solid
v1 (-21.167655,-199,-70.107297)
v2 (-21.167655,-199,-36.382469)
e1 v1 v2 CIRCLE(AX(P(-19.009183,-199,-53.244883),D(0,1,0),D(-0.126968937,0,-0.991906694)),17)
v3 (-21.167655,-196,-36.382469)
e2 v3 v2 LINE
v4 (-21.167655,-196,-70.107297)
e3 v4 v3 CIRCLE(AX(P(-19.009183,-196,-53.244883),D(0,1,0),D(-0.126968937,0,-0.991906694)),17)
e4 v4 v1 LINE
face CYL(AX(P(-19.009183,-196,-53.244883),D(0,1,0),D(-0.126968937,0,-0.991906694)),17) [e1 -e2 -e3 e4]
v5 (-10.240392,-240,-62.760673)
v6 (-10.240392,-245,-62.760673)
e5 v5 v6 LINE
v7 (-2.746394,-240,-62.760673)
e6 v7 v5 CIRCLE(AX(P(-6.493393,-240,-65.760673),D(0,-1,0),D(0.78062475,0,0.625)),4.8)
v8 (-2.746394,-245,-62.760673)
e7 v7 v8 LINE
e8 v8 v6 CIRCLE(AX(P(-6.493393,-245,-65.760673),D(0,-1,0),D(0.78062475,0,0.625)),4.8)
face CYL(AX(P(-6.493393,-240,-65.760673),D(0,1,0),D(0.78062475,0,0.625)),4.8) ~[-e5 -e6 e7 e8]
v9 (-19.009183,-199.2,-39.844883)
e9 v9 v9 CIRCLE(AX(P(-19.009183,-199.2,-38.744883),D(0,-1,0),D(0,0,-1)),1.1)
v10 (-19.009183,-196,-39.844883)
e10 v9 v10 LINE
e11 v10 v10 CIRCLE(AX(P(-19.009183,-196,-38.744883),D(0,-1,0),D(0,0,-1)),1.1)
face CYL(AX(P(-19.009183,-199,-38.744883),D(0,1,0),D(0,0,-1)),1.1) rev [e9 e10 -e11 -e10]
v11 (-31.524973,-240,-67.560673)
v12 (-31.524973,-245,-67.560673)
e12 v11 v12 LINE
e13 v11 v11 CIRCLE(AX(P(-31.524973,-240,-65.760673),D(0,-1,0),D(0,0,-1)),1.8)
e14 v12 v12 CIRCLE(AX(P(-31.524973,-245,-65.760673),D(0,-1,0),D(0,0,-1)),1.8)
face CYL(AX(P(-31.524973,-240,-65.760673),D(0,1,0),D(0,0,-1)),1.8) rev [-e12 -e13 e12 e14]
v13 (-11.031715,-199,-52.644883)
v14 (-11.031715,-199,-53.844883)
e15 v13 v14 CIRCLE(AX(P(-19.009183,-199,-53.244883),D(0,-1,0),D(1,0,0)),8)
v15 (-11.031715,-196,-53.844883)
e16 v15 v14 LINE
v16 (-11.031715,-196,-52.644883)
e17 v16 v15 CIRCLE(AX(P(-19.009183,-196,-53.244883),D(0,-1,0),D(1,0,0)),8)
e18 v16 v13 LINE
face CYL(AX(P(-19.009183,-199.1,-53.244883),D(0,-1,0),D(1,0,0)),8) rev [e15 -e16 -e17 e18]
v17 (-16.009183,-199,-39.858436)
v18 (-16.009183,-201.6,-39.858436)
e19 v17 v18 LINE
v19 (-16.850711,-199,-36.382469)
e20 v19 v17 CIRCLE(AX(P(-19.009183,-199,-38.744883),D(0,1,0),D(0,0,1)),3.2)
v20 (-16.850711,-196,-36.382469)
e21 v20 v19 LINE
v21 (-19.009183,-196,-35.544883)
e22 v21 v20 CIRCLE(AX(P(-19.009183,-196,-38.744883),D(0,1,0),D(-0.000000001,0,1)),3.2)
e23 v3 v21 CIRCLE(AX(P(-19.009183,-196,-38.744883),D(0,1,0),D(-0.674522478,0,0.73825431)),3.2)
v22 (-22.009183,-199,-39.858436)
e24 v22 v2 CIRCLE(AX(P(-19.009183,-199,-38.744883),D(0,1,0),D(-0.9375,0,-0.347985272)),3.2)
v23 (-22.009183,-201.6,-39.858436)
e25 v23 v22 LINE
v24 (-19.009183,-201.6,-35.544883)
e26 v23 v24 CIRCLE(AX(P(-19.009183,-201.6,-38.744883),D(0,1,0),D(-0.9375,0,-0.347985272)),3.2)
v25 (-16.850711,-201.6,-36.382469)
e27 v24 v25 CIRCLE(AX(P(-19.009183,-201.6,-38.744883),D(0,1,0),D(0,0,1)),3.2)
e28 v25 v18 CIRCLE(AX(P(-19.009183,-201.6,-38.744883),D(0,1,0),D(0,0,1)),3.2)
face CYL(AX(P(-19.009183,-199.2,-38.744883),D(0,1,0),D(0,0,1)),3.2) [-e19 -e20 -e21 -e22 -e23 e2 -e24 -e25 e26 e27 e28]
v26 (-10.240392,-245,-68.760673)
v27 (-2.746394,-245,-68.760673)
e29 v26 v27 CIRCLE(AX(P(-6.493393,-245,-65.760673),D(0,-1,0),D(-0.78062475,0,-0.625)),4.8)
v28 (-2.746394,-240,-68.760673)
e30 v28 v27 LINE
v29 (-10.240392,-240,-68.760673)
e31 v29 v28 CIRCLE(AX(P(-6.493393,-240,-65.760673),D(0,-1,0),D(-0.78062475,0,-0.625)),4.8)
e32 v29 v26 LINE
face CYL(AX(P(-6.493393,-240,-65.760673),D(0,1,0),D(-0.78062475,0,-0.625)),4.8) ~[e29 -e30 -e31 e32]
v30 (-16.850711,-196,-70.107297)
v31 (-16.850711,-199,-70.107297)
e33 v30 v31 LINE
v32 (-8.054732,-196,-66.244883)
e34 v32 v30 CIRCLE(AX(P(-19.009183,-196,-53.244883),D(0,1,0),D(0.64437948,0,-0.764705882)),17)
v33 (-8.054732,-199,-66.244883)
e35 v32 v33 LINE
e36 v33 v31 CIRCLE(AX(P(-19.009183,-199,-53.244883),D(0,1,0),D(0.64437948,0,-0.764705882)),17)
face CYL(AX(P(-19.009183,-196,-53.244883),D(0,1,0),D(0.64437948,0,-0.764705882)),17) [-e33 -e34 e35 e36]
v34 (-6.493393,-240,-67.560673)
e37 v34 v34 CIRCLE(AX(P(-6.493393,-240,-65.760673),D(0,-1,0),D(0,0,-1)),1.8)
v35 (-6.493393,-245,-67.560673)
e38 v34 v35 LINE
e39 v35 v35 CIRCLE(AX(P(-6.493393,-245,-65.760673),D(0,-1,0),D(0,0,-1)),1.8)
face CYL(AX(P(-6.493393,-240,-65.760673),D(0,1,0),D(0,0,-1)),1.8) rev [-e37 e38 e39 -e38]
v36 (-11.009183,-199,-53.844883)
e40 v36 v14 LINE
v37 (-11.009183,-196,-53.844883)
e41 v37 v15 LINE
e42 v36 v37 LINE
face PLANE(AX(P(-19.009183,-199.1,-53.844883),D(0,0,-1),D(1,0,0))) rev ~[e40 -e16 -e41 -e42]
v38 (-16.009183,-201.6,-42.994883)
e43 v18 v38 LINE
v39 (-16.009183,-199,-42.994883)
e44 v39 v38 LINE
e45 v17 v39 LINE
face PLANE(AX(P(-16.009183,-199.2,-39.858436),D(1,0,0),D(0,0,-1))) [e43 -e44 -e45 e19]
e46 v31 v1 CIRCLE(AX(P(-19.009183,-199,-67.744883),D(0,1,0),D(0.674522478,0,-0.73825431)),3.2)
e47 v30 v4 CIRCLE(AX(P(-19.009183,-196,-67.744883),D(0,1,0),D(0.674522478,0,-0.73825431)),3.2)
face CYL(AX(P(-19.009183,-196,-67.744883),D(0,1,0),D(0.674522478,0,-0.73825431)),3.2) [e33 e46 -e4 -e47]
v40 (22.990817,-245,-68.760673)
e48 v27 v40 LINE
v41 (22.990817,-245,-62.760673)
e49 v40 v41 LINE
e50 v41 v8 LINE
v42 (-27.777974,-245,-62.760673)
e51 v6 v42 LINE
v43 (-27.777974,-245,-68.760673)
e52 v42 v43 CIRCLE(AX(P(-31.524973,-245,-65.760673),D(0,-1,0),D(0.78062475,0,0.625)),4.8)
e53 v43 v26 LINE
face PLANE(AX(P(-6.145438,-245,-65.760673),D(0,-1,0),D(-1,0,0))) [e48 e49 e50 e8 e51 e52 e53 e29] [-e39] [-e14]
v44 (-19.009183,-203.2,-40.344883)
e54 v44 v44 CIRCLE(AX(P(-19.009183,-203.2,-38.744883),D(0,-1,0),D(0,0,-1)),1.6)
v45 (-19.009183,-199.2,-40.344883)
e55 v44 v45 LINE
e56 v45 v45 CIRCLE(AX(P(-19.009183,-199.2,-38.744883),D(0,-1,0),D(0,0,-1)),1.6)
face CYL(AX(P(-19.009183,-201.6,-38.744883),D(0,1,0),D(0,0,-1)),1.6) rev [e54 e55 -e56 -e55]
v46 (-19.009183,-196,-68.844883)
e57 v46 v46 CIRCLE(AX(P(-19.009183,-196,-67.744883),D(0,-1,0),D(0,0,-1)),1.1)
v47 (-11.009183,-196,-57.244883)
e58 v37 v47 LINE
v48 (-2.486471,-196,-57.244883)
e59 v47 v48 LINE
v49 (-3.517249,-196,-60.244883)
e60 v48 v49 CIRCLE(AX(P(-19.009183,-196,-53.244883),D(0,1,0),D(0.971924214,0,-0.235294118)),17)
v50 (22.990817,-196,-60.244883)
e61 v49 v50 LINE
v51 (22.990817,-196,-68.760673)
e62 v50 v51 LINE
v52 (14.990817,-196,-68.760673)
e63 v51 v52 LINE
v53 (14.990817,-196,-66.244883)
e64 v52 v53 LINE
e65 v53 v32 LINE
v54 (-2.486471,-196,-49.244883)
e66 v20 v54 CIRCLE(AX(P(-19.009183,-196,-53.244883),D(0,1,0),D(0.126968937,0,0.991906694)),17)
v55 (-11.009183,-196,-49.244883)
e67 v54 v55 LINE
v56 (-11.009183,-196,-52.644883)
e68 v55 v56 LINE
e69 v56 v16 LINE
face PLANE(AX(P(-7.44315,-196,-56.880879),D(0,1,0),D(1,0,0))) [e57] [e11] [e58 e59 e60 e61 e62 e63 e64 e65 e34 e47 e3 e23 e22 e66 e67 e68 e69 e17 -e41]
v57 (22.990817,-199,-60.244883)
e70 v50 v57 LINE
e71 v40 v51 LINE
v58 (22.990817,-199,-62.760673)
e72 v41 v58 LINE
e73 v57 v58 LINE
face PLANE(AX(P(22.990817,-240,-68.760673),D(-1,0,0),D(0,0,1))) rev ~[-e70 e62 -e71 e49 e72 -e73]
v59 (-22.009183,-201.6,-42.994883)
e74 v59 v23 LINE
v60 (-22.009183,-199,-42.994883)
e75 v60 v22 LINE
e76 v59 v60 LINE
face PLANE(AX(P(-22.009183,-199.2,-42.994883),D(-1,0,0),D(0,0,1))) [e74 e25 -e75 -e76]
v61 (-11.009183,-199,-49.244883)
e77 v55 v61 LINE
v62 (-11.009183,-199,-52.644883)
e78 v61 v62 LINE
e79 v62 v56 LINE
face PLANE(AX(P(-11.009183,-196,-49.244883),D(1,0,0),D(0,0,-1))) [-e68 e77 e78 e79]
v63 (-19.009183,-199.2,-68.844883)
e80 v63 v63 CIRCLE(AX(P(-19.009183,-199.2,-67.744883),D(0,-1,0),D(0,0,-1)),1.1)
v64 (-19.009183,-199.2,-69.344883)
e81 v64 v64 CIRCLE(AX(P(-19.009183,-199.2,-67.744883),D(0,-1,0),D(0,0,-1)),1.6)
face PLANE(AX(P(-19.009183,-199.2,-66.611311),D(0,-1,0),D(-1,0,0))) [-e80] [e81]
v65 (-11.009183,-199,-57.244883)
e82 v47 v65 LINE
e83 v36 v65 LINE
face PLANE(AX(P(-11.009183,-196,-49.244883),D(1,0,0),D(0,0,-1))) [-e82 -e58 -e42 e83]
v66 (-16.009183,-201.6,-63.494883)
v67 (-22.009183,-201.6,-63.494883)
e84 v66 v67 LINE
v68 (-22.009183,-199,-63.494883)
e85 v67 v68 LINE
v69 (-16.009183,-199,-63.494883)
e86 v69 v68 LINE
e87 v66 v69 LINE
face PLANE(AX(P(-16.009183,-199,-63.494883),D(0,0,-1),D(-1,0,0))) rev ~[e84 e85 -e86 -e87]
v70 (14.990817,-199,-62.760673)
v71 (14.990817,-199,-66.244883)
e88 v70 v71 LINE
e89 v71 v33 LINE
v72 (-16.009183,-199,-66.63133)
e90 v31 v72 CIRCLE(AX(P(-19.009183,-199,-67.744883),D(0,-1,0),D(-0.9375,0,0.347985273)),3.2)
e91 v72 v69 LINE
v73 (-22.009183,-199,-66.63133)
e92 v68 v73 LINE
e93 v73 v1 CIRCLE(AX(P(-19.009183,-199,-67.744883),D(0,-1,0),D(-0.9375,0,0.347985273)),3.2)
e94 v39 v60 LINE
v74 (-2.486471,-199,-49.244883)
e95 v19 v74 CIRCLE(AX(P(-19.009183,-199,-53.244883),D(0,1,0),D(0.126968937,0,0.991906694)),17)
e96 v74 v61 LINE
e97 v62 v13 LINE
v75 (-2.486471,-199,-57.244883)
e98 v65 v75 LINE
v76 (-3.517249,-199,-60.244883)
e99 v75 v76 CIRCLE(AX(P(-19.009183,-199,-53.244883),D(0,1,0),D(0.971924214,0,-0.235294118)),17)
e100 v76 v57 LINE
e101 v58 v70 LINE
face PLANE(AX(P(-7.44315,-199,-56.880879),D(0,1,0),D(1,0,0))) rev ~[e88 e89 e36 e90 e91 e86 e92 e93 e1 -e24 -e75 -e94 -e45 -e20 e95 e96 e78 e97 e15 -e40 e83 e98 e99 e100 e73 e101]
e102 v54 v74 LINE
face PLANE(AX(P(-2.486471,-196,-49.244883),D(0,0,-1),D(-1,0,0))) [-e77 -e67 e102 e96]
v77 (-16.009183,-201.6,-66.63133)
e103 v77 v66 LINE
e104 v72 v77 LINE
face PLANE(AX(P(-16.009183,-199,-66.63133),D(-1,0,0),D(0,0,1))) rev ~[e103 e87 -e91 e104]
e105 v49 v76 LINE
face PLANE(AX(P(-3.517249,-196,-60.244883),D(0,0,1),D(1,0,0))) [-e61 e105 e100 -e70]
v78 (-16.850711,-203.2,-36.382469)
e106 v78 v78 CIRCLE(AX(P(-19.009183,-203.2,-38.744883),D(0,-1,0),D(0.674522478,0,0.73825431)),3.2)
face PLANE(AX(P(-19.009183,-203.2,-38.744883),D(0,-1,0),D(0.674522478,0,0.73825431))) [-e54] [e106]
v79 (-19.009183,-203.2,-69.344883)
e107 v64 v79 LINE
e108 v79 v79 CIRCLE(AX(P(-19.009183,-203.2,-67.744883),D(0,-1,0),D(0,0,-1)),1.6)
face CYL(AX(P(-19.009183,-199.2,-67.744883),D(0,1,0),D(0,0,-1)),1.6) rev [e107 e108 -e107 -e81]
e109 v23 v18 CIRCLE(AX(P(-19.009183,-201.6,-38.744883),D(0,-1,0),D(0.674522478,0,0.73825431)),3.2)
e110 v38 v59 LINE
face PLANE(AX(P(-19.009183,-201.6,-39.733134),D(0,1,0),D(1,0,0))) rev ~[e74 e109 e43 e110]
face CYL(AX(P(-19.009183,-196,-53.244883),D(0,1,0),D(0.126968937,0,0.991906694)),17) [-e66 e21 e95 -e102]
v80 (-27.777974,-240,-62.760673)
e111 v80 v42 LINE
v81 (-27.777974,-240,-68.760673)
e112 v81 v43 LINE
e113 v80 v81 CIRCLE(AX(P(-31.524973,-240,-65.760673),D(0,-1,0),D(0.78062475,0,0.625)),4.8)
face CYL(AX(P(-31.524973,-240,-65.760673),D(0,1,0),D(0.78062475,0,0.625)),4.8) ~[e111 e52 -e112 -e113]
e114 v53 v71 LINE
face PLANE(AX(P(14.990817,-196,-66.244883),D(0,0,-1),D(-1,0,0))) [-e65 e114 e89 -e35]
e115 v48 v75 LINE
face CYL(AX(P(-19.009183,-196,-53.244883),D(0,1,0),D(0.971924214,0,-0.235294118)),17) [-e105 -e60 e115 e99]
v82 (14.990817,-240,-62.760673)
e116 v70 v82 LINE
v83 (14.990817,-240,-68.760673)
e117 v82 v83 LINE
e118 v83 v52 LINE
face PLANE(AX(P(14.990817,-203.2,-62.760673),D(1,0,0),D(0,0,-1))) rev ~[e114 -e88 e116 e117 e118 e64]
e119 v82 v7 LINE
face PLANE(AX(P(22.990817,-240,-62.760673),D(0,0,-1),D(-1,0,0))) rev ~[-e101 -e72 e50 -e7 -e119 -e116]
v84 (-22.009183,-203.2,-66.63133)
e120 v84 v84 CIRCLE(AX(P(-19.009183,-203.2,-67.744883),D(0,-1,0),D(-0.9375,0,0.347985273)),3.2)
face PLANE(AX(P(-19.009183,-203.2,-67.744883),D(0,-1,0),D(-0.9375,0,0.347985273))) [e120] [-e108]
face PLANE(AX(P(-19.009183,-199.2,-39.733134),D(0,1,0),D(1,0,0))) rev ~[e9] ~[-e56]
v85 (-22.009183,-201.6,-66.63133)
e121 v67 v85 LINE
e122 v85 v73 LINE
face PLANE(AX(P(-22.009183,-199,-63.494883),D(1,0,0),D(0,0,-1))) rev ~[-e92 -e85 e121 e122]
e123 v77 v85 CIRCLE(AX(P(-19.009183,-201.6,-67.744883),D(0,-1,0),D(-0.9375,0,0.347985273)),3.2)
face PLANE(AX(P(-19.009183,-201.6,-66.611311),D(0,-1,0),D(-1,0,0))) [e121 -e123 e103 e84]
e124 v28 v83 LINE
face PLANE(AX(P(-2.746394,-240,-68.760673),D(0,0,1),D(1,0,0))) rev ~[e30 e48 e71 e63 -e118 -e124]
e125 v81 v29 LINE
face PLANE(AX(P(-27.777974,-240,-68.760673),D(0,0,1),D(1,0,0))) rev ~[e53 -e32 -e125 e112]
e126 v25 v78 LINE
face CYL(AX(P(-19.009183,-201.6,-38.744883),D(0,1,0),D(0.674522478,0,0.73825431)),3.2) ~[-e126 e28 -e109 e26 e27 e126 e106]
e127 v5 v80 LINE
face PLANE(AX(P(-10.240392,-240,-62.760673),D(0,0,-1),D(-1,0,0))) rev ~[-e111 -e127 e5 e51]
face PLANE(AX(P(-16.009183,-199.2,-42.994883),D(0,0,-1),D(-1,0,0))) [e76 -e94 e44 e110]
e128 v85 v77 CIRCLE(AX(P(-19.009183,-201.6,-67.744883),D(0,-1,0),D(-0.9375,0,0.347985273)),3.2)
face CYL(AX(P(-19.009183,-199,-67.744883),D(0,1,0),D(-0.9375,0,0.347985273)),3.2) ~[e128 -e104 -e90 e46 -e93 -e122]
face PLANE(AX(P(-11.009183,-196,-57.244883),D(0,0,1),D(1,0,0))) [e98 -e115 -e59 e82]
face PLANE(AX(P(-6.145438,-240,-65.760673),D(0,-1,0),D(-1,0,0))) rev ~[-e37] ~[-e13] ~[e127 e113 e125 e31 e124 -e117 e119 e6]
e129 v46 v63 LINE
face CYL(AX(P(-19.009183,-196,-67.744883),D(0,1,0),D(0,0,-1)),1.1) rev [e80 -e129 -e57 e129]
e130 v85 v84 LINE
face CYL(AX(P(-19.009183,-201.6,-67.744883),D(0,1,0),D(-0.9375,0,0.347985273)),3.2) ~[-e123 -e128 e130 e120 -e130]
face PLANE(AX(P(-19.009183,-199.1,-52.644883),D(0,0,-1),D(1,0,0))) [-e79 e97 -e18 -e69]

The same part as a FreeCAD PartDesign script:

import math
import FreeCAD as App
import Part
import Sketcher

V = App.Vector
Q = App.Units.Quantity


def add_polygon(sketch, points):
    """Adds a closed chain of lines whose ends are joined by coincident constraints."""
    first, n = sketch.GeometryCount, len(points)
    for a, b in zip(points, points[1:] + points[:1]):
        sketch.addGeometry(Part.LineSegment(App.Vector(*a, 0), App.Vector(*b, 0)), False)
    for i in range(n):
        sketch.addConstraint(Sketcher.Constraint("Coincident", first + i, 2, first + (i + 1) % n, 1))

doc = App.newDocument("Part")
body = doc.addObject("PartDesign::Body", "Body")

sketch1 = body.newObject("Sketcher::SketchObject", "Sketch")
sketch1.AttachmentSupport = (doc.getObject("XZ_Plane"), [""])
sketch1.MapMode = "FlatFace"
sketch1.AttachmentOffset = App.Placement(V(0, 0, 196), App.Rotation())
sketch1.addGeometry([
    Part.LineSegment(V(-8.1, -66.2, 0), V(15, -66.2, 0)),
    Part.LineSegment(V(15, -66.2, 0), V(15, -68.8, 0)),
    Part.LineSegment(V(15, -68.8, 0), V(23, -68.8, 0)),
    Part.LineSegment(V(23, -68.8, 0), V(23, -60.2, 0)),
    Part.LineSegment(V(23, -60.2, 0), V(-3.5, -60.2, 0)),
    Part.ArcOfCircle(Part.Circle(V(-19, -53.2, 0), V(0, 0, 1), 17), math.radians(-24.32), math.radians(-13.61)),
    Part.LineSegment(V(-2.5, -57.2, 0), V(-11, -57.2, 0)),
    Part.LineSegment(V(-11, -57.2, 0), V(-11, -49.2, 0)),
    Part.LineSegment(V(-11, -49.2, 0), V(-2.5, -49.2, 0)),
    Part.ArcOfCircle(Part.Circle(V(-19, -53.2, 0), V(0, 0, 1), 17), math.radians(14), math.radians(83)),
    Part.ArcOfCircle(Part.Circle(V(-19, -38.7, 0), V(0, 0, 1), 3.2), math.radians(48), math.radians(90)),
    Part.ArcOfCircle(Part.Circle(V(-19, -38.7, 0), V(0, 0, 1), 3.2), math.radians(90), math.radians(132)),
    Part.ArcOfCircle(Part.Circle(V(-19, -53.2, 0), V(0, 0, 1), 17), math.radians(97), math.radians(263)),
    Part.ArcOfCircle(Part.Circle(V(-19, -67.7, 0), V(0, 0, 1), 3.2), math.radians(-132), math.radians(-48)),
    Part.ArcOfCircle(Part.Circle(V(-19, -53.2, 0), V(0, 0, 1), 17), math.radians(-83), math.radians(-50)),
    Part.Circle(V(-19, -38.7, 0), V(0, 0, 1), 1.1),
    Part.Circle(V(-19, -67.7, 0), V(0, 0, 1), 1.1),
], False)
sketch1.addConstraint([
    Sketcher.Constraint("Coincident", 0, 2, 1, 1),
    Sketcher.Constraint("Coincident", 1, 2, 2, 1),
    Sketcher.Constraint("Coincident", 2, 2, 3, 1),
    Sketcher.Constraint("Coincident", 3, 2, 4, 1),
    Sketcher.Constraint("Coincident", 4, 2, 5, 1),
    Sketcher.Constraint("Coincident", 5, 2, 6, 1),
    Sketcher.Constraint("Coincident", 6, 2, 7, 1),
    Sketcher.Constraint("Coincident", 7, 2, 8, 1),
    Sketcher.Constraint("Coincident", 8, 2, 9, 1),
    Sketcher.Constraint("Coincident", 9, 2, 10, 1),
    Sketcher.Constraint("Tangent", 10, 2, 11, 1),
    Sketcher.Constraint("Coincident", 11, 2, 12, 1),
    Sketcher.Constraint("Coincident", 12, 2, 13, 1),
    Sketcher.Constraint("Coincident", 13, 2, 14, 1),
    Sketcher.Constraint("Coincident", 14, 2, 0, 1),
    Sketcher.Constraint("Horizontal", 0),
    Sketcher.Constraint("Vertical", 1),
    Sketcher.Constraint("Horizontal", 2),
    Sketcher.Constraint("Vertical", 3),
    Sketcher.Constraint("Horizontal", 4),
    Sketcher.Constraint("Horizontal", 6),
    Sketcher.Constraint("Vertical", 7),
    Sketcher.Constraint("Horizontal", 8),
    Sketcher.Constraint("Coincident", 9, 3, 5, 3),
    Sketcher.Constraint("Coincident", 12, 3, 5, 3),
    Sketcher.Constraint("Coincident", 14, 3, 5, 3),
    Sketcher.Constraint("Coincident", 15, 3, 10, 3),
    Sketcher.Constraint("Coincident", 16, 3, 13, 3),
    Sketcher.Constraint("Equal", 5, 9),
    Sketcher.Constraint("Equal", 10, 11),
    Sketcher.Constraint("Equal", 9, 12),
    Sketcher.Constraint("Equal", 11, 13),
    Sketcher.Constraint("Equal", 12, 14),
    Sketcher.Constraint("Equal", 15, 16),
    Sketcher.Constraint("Horizontal", 9, 2, 11, 2),
    Sketcher.Constraint("Horizontal", 12, 2, 13, 2),
    Sketcher.Constraint("Vertical", 5, 2, 8, 2),
    Sketcher.Constraint("Vertical", 16, 3, 10, 2),
    Sketcher.Constraint("Vertical", 11, 2, 12, 2),
    Sketcher.Constraint("Equal", 2, 7),
    Sketcher.Constraint("Radius", 5, Q("17 mm")),
    Sketcher.Constraint("Diameter", 15, Q("2.2 mm")),
    Sketcher.Constraint("Radius", 10, Q("3.2 mm")),
    Sketcher.Constraint("DistanceX", 2, 1, 2, 2, Q("8 mm")),
    Sketcher.Constraint("DistanceY", 13, 3, 11, 3, Q("29 mm")),
    Sketcher.Constraint("DistanceX", 13, 3, 0, 2, Q("34 mm")),
    Sketcher.Constraint("DistanceY", 0, 2, 14, 3, Q("13 mm")),
    Sketcher.Constraint("DistanceY", 0, 2, 3, 2, Q("6 mm")),
    Sketcher.Constraint("DistanceX", 14, 3, 6, 2, Q("8 mm")),
    Sketcher.Constraint("DistanceY", 1, 2, 1, 1, Q("2.51579 mm")),
    Sketcher.Constraint("DistanceX", 4, 2, -1, 1, Q("3.517249 mm")),
    Sketcher.Constraint("DistanceY", 9, 2, -1, 1, Q("36.382469 mm")),
])
pad1 = body.newObject("PartDesign::Pad", "Pad")
pad1.Profile = sketch1
pad1.Length = 3

sketch2 = body.newObject("Sketcher::SketchObject", "Sketch001")
sketch2.AttachmentSupport = (doc.getObject("XZ_Plane"), [""])
sketch2.MapMode = "FlatFace"
sketch2.AttachmentOffset = App.Placement(V(0, 0, 199), App.Rotation())
sketch2.addGeometry(Part.LineSegment(V(-22, -43, 0), V(-16, -43, 0)), False)
sketch2.addGeometry(Part.LineSegment(V(-16, -43, 0), V(-16, -39.9, 0)), False)
sketch2.addGeometry(Part.ArcOfCircle(Part.Circle(V(-19, -38.7, 0), V(0, 0, 1), 3.2), math.radians(-20), math.radians(90)), False)
sketch2.addGeometry(Part.ArcOfCircle(Part.Circle(V(-19, -38.7, 0), V(0, 0, 1), 3.2), math.radians(90), math.radians(200)), False)
sketch2.addGeometry(Part.LineSegment(V(-22, -39.9, 0), V(-22, -43, 0)), False)
sketch2.addGeometry(Part.Circle(V(-19, -38.7, 0), V(0, 0, 1), 1.1), False)
add_polygon(sketch2, [(23, -68.8), (23, -62.8), (15, -62.8), (15, -68.8)])
sketch2.addGeometry(Part.LineSegment(V(-16, -66.6, 0), V(-16, -63.5, 0)), False)
sketch2.addGeometry(Part.LineSegment(V(-16, -63.5, 0), V(-22, -63.5, 0)), False)
sketch2.addGeometry(Part.LineSegment(V(-22, -63.5, 0), V(-22, -66.6, 0)), False)
sketch2.addGeometry(Part.ArcOfCircle(Part.Circle(V(-19, -67.7, 0), V(0, 0, 1), 3.2), math.radians(160), math.radians(380)), False)
sketch2.addGeometry(Part.Circle(V(-19, -67.7, 0), V(0, 0, 1), 1.1), False)
sketch2.addConstraint([
    Sketcher.Constraint("Coincident", 0, 2, 1, 1),
    Sketcher.Constraint("Coincident", 1, 2, 2, 1),
    Sketcher.Constraint("Tangent", 2, 2, 3, 1),
    Sketcher.Constraint("Coincident", 3, 2, 4, 1),
    Sketcher.Constraint("Coincident", 4, 2, 0, 1),
    Sketcher.Constraint("Coincident", 10, 2, 11, 1),
    Sketcher.Constraint("Coincident", 11, 2, 12, 1),
    Sketcher.Constraint("Coincident", 12, 2, 13, 1),
    Sketcher.Constraint("Coincident", 13, 2, 10, 1),
    Sketcher.Constraint("Horizontal", 0),
    Sketcher.Constraint("Vertical", 1),
    Sketcher.Constraint("Vertical", 4),
    Sketcher.Constraint("Vertical", 6),
    Sketcher.Constraint("Horizontal", 7),
    Sketcher.Constraint("Vertical", 8),
    Sketcher.Constraint("Horizontal", 9),
    Sketcher.Constraint("Vertical", 10),
    Sketcher.Constraint("Horizontal", 11),
    Sketcher.Constraint("Vertical", 12),
    Sketcher.Constraint("Coincident", 5, 3, 2, 3),
    Sketcher.Constraint("Coincident", 14, 3, 13, 3),
    Sketcher.Constraint("Equal", 2, 3),
    Sketcher.Constraint("Equal", 3, 13),
    Sketcher.Constraint("Equal", 5, 14),
    Sketcher.Constraint("Horizontal", 1, 2, 3, 2),
    Sketcher.Constraint("Horizontal", 12, 2, 13, 2),
    Sketcher.Constraint("Vertical", 5, 3, 13, 3),
    Sketcher.Constraint("Vertical", 14, 3, 2, 2),
    Sketcher.Constraint("Vertical", 1, 2, 10, 2),
    Sketcher.Constraint("Equal", 11, 6),
    Sketcher.Constraint("Equal", 4, 10),
    Sketcher.Constraint("Diameter", 5, Q("2.2 mm")),
    Sketcher.Constraint("Radius", 2, Q("3.2 mm")),
    Sketcher.Constraint("DistanceX", 0, 1, 0, 2, Q("6 mm")),
    Sketcher.Constraint("DistanceX", 7, 2, 7, 1, Q("8 mm")),
    Sketcher.Constraint("DistanceY", 13, 3, 2, 3, Q("29 mm")),
    Sketcher.Constraint("DistanceX", 13, 3, 6, 2, Q("42 mm")),
    Sketcher.Constraint("DistanceY", 10, 2, 0, 2, Q("20.5 mm")),
    Sketcher.Constraint("DistanceY", 12, 2, -1, 1, Q("66.63133 mm")),
    Sketcher.Constraint("DistanceY", 13, 3, 6, 2, Q("4.98421 mm")),
    Sketcher.Constraint("DistanceX", 2, 3, -1, 1, Q("19.009183 mm")),
])
pad2 = body.newObject("PartDesign::Pad", "Pad001")
pad2.Profile = sketch2
pad2.Length = 0.2

sketch3 = body.newObject("Sketcher::SketchObject", "Sketch002")
sketch3.AttachmentSupport = (doc.getObject("XZ_Plane"), [""])
sketch3.MapMode = "FlatFace"
sketch3.AttachmentOffset = App.Placement(V(0, 0, 199.2), App.Rotation())
sketch3.addGeometry(Part.LineSegment(V(-22, -43, 0), V(-16, -43, 0)), False)
sketch3.addGeometry(Part.LineSegment(V(-16, -43, 0), V(-16, -39.9, 0)), False)
sketch3.addGeometry(Part.ArcOfCircle(Part.Circle(V(-19, -38.7, 0), V(0, 0, 1), 3.2), math.radians(-20), math.radians(90)), False)
sketch3.addGeometry(Part.ArcOfCircle(Part.Circle(V(-19, -38.7, 0), V(0, 0, 1), 3.2), math.radians(90), math.radians(200)), False)
sketch3.addGeometry(Part.LineSegment(V(-22, -39.9, 0), V(-22, -43, 0)), False)
sketch3.addGeometry(Part.Circle(V(-19, -38.7, 0), V(0, 0, 1), 1.6), False)
add_polygon(sketch3, [(23, -68.8), (23, -62.8), (15, -62.8), (15, -68.8)])
sketch3.addGeometry(Part.LineSegment(V(-16, -66.6, 0), V(-16, -63.5, 0)), False)
sketch3.addGeometry(Part.LineSegment(V(-16, -63.5, 0), V(-22, -63.5, 0)), False)
sketch3.addGeometry(Part.LineSegment(V(-22, -63.5, 0), V(-22, -66.6, 0)), False)
sketch3.addGeometry(Part.ArcOfCircle(Part.Circle(V(-19, -67.7, 0), V(0, 0, 1), 3.2), math.radians(160), math.radians(380)), False)
sketch3.addGeometry(Part.Circle(V(-19, -67.7, 0), V(0, 0, 1), 1.6), False)
sketch3.addConstraint([
    Sketcher.Constraint("Coincident", 0, 2, 1, 1),
    Sketcher.Constraint("Coincident", 1, 2, 2, 1),
    Sketcher.Constraint("Tangent", 2, 2, 3, 1),
    Sketcher.Constraint("Coincident", 3, 2, 4, 1),
    Sketcher.Constraint("Coincident", 4, 2, 0, 1),
    Sketcher.Constraint("Coincident", 10, 2, 11, 1),
    Sketcher.Constraint("Coincident", 11, 2, 12, 1),
    Sketcher.Constraint("Coincident", 12, 2, 13, 1),
    Sketcher.Constraint("Coincident", 13, 2, 10, 1),
    Sketcher.Constraint("Horizontal", 0),
    Sketcher.Constraint("Vertical", 1),
    Sketcher.Constraint("Vertical", 4),
    Sketcher.Constraint("Vertical", 6),
    Sketcher.Constraint("Horizontal", 7),
    Sketcher.Constraint("Vertical", 8),
    Sketcher.Constraint("Horizontal", 9),
    Sketcher.Constraint("Vertical", 10),
    Sketcher.Constraint("Horizontal", 11),
    Sketcher.Constraint("Vertical", 12),
    Sketcher.Constraint("Coincident", 5, 3, 2, 3),
    Sketcher.Constraint("Coincident", 14, 3, 13, 3),
    Sketcher.Constraint("Equal", 2, 3),
    Sketcher.Constraint("Equal", 3, 13),
    Sketcher.Constraint("Equal", 5, 14),
    Sketcher.Constraint("Horizontal", 1, 2, 3, 2),
    Sketcher.Constraint("Horizontal", 12, 2, 13, 2),
    Sketcher.Constraint("Vertical", 5, 3, 13, 3),
    Sketcher.Constraint("Vertical", 14, 3, 2, 2),
    Sketcher.Constraint("Vertical", 1, 2, 10, 2),
    Sketcher.Constraint("Equal", 11, 6),
    Sketcher.Constraint("Equal", 4, 10),
    Sketcher.Constraint("Diameter", 5, Q("3.2 mm")),
    Sketcher.Constraint("Radius", 2, Q("3.2 mm")),
    Sketcher.Constraint("DistanceX", 0, 1, 0, 2, Q("6 mm")),
    Sketcher.Constraint("DistanceX", 7, 2, 7, 1, Q("8 mm")),
    Sketcher.Constraint("DistanceY", 13, 3, 2, 3, Q("29 mm")),
    Sketcher.Constraint("DistanceX", 13, 3, 6, 2, Q("42 mm")),
    Sketcher.Constraint("DistanceY", 10, 2, 0, 2, Q("20.5 mm")),
    Sketcher.Constraint("DistanceY", 12, 2, -1, 1, Q("66.63133 mm")),
    Sketcher.Constraint("DistanceY", 13, 3, 6, 2, Q("4.98421 mm")),
    Sketcher.Constraint("DistanceX", 2, 3, -1, 1, Q("19.009183 mm")),
])
pad3 = body.newObject("PartDesign::Pad", "Pad002")
pad3.Profile = sketch3
pad3.Length = 2.4

sketch4 = body.newObject("Sketcher::SketchObject", "Sketch003")
sketch4.AttachmentSupport = (doc.getObject("XZ_Plane"), [""])
sketch4.MapMode = "FlatFace"
sketch4.AttachmentOffset = App.Placement(V(0, 0, 201.6), App.Rotation())
sketch4.addGeometry(Part.Circle(V(-19, -38.7, 0), V(0, 0, 1), 3.2), False)
sketch4.addGeometry(Part.Circle(V(-19, -38.7, 0), V(0, 0, 1), 1.6), False)
sketch4.addGeometry(Part.Circle(V(-19, -67.7, 0), V(0, 0, 1), 3.2), False)
sketch4.addGeometry(Part.Circle(V(-19, -67.7, 0), V(0, 0, 1), 1.6), False)
add_polygon(sketch4, [(23, -68.8), (23, -62.8), (15, -62.8), (15, -68.8)])
sketch4.addConstraint([
    Sketcher.Constraint("Vertical", 4),
    Sketcher.Constraint("Horizontal", 5),
    Sketcher.Constraint("Vertical", 6),
    Sketcher.Constraint("Horizontal", 7),
    Sketcher.Constraint("Coincident", 1, 3, 0, 3),
    Sketcher.Constraint("Coincident", 3, 3, 2, 3),
    Sketcher.Constraint("Equal", 0, 2),
    Sketcher.Constraint("Equal", 1, 3),
    Sketcher.Constraint("Vertical", 1, 3, 2, 3),
    Sketcher.Constraint("Diameter", 0, Q("6.4 mm")),
    Sketcher.Constraint("Diameter", 1, Q("3.2 mm")),
    Sketcher.Constraint("DistanceX", 5, 2, 5, 1, Q("8 mm")),
    Sketcher.Constraint("DistanceY", 4, 1, 4, 2, Q("6 mm")),
    Sketcher.Constraint("DistanceY", 2, 3, 0, 3, Q("29 mm")),
    Sketcher.Constraint("DistanceX", 2, 3, 4, 2, Q("42 mm")),
    Sketcher.Constraint("DistanceY", 2, 3, 4, 2, Q("4.98421 mm")),
    Sketcher.Constraint("DistanceX", 0, 3, -1, 1, Q("19.009183 mm")),
    Sketcher.Constraint("DistanceY", 0, 3, -1, 1, Q("38.744883 mm")),
])
pad4 = body.newObject("PartDesign::Pad", "Pad003")
pad4.Profile = sketch4
pad4.Length = 1.6

sketch5 = body.newObject("Sketcher::SketchObject", "Sketch004")
sketch5.AttachmentSupport = (doc.getObject("XZ_Plane"), [""])
sketch5.MapMode = "FlatFace"
sketch5.AttachmentOffset = App.Placement(V(0, 0, 203.2), App.Rotation())
add_polygon(sketch5, [(23, -69), (23, -63), (15, -63), (15, -69)])
sketch5.addConstraint([
    Sketcher.Constraint("Vertical", 0),
    Sketcher.Constraint("Horizontal", 1),
    Sketcher.Constraint("Vertical", 2),
    Sketcher.Constraint("Horizontal", 3),
    Sketcher.Constraint("DistanceX", 1, 2, 1, 1, Q("8 mm")),
    Sketcher.Constraint("DistanceY", 0, 1, 0, 2, Q("6 mm")),
    Sketcher.Constraint("DistanceX", -1, 1, 0, 2, Q("22.990817 mm")),
    Sketcher.Constraint("DistanceY", 0, 2, -1, 1, Q("62.760673 mm")),
])
pad5 = body.newObject("PartDesign::Pad", "Pad004")
pad5.Profile = sketch5
pad5.Length = 36.8

sketch6 = body.newObject("Sketcher::SketchObject", "Sketch005")
sketch6.AttachmentSupport = (doc.getObject("XZ_Plane"), [""])
sketch6.MapMode = "FlatFace"
sketch6.AttachmentOffset = App.Placement(V(0, 0, 240), App.Rotation())
sketch6.addGeometry([
    Part.LineSegment(V(23, -62.8, 0), V(-2.7, -62.8, 0)),
    Part.ArcOfCircle(Part.Circle(V(-6.5, -65.8, 0), V(0, 0, 1), 4.8), math.radians(39), math.radians(141)),
    Part.LineSegment(V(-10.2, -62.8, 0), V(-27.8, -62.8, 0)),
    Part.ArcOfCircle(Part.Circle(V(-31.5, -65.8, 0), V(0, 0, 1), 4.8), math.radians(39), math.radians(321)),
    Part.LineSegment(V(-27.8, -68.8, 0), V(-10.2, -68.8, 0)),
    Part.ArcOfCircle(Part.Circle(V(-6.5, -65.8, 0), V(0, 0, 1), 4.8), math.radians(-141), math.radians(-39)),
    Part.LineSegment(V(-2.7, -68.8, 0), V(23, -68.8, 0)),
    Part.LineSegment(V(23, -68.8, 0), V(23, -62.8, 0)),
    Part.Circle(V(-6.5, -65.8, 0), V(0, 0, 1), 1.8),
    Part.Circle(V(-31.5, -65.8, 0), V(0, 0, 1), 1.8),
], False)
sketch6.addConstraint([
    Sketcher.Constraint("Coincident", 0, 2, 1, 1),
    Sketcher.Constraint("Coincident", 1, 2, 2, 1),
    Sketcher.Constraint("Coincident", 2, 2, 3, 1),
    Sketcher.Constraint("Coincident", 3, 2, 4, 1),
    Sketcher.Constraint("Coincident", 4, 2, 5, 1),
    Sketcher.Constraint("Coincident", 5, 2, 6, 1),
    Sketcher.Constraint("Coincident", 6, 2, 7, 1),
    Sketcher.Constraint("Coincident", 7, 2, 0, 1),
    Sketcher.Constraint("Horizontal", 0),
    Sketcher.Constraint("Horizontal", 2),
    Sketcher.Constraint("Horizontal", 4),
    Sketcher.Constraint("Horizontal", 6),
    Sketcher.Constraint("Vertical", 7),
    Sketcher.Constraint("Coincident", 5, 3, 1, 3),
    Sketcher.Constraint("Coincident", 8, 3, 1, 3),
    Sketcher.Constraint("Coincident", 9, 3, 3, 3),
    Sketcher.Constraint("Equal", 1, 3),
    Sketcher.Constraint("Equal", 3, 5),
    Sketcher.Constraint("Equal", 8, 9),
    Sketcher.Constraint("Horizontal", 1, 3, 3, 3),
    Sketcher.Constraint("Horizontal", 0, 2, 1, 2),
    Sketcher.Constraint("Horizontal", 4, 2, 5, 2),
    Sketcher.Constraint("Vertical", 2, 2, 3, 2),
    Sketcher.Constraint("Diameter", 8, Q("3.6 mm")),
    Sketcher.Constraint("Radius", 1, Q("4.8 mm")),
    Sketcher.Constraint("DistanceY", 7, 1, 7, 2, Q("6 mm")),
    Sketcher.Constraint("DistanceX", 0, 2, 0, 1, Q("25.737211 mm")),
    Sketcher.Constraint("DistanceX", 2, 2, 2, 1, Q("17.537582 mm")),
    Sketcher.Constraint("DistanceX", 1, 2, -1, 1, Q("10.240392 mm")),
    Sketcher.Constraint("DistanceY", 1, 3, -1, 1, Q("65.760673 mm")),
])
pad6 = body.newObject("PartDesign::Pad", "Pad005")
pad6.Profile = sketch6
pad6.Length = 5

sketch7 = body.newObject("Sketcher::SketchObject", "Sketch006")
sketch7.AttachmentSupport = (doc.getObject("XZ_Plane"), [""])
sketch7.MapMode = "FlatFace"
sketch7.AttachmentOffset = App.Placement(V(0, 0, 199.1), App.Rotation())
add_polygon(sketch7, [(-19, -53.8), (-19, -52.6), (-10, -52.6), (-10, -53.8)])
sketch7.addConstraint([
    Sketcher.Constraint("Vertical", 0),
    Sketcher.Constraint("Horizontal", 1),
    Sketcher.Constraint("Vertical", 2),
    Sketcher.Constraint("Horizontal", 3),
    Sketcher.Constraint("DistanceX", 1, 1, 1, 2, Q("9 mm")),
    Sketcher.Constraint("DistanceY", 0, 1, 0, 2, Q("1.2 mm")),
    Sketcher.Constraint("DistanceX", 0, 2, -1, 1, Q("19.009183 mm")),
    Sketcher.Constraint("DistanceY", 0, 2, -1, 1, Q("52.644883 mm")),
])
pocket1 = body.newObject("PartDesign::Pocket", "Pocket")
pocket1.Profile = sketch7
pocket1.Length = 3.2

sketch8 = body.newObject("Sketcher::SketchObject", "Sketch007")
sketch8.AttachmentSupport = (doc.getObject("XZ_Plane"), [""])
sketch8.MapMode = "FlatFace"
sketch8.AttachmentOffset = App.Placement(V(0, 0, 199.1), App.Rotation())
sketch8.addGeometry(Part.Circle(V(-19, -53, 0), V(0, 0, 1), 8), False)
sketch8.addConstraint([
    Sketcher.Constraint("Diameter", 0, Q("16 mm")),
    Sketcher.Constraint("DistanceX", 0, 3, -1, 1, Q("19.009183 mm")),
    Sketcher.Constraint("DistanceY", 0, 3, -1, 1, Q("53.244883 mm")),
])
pocket2 = body.newObject("PartDesign::Pocket", "Pocket001")
pocket2.Profile = sketch8
pocket2.Length = 3.2

doc.recompute()
